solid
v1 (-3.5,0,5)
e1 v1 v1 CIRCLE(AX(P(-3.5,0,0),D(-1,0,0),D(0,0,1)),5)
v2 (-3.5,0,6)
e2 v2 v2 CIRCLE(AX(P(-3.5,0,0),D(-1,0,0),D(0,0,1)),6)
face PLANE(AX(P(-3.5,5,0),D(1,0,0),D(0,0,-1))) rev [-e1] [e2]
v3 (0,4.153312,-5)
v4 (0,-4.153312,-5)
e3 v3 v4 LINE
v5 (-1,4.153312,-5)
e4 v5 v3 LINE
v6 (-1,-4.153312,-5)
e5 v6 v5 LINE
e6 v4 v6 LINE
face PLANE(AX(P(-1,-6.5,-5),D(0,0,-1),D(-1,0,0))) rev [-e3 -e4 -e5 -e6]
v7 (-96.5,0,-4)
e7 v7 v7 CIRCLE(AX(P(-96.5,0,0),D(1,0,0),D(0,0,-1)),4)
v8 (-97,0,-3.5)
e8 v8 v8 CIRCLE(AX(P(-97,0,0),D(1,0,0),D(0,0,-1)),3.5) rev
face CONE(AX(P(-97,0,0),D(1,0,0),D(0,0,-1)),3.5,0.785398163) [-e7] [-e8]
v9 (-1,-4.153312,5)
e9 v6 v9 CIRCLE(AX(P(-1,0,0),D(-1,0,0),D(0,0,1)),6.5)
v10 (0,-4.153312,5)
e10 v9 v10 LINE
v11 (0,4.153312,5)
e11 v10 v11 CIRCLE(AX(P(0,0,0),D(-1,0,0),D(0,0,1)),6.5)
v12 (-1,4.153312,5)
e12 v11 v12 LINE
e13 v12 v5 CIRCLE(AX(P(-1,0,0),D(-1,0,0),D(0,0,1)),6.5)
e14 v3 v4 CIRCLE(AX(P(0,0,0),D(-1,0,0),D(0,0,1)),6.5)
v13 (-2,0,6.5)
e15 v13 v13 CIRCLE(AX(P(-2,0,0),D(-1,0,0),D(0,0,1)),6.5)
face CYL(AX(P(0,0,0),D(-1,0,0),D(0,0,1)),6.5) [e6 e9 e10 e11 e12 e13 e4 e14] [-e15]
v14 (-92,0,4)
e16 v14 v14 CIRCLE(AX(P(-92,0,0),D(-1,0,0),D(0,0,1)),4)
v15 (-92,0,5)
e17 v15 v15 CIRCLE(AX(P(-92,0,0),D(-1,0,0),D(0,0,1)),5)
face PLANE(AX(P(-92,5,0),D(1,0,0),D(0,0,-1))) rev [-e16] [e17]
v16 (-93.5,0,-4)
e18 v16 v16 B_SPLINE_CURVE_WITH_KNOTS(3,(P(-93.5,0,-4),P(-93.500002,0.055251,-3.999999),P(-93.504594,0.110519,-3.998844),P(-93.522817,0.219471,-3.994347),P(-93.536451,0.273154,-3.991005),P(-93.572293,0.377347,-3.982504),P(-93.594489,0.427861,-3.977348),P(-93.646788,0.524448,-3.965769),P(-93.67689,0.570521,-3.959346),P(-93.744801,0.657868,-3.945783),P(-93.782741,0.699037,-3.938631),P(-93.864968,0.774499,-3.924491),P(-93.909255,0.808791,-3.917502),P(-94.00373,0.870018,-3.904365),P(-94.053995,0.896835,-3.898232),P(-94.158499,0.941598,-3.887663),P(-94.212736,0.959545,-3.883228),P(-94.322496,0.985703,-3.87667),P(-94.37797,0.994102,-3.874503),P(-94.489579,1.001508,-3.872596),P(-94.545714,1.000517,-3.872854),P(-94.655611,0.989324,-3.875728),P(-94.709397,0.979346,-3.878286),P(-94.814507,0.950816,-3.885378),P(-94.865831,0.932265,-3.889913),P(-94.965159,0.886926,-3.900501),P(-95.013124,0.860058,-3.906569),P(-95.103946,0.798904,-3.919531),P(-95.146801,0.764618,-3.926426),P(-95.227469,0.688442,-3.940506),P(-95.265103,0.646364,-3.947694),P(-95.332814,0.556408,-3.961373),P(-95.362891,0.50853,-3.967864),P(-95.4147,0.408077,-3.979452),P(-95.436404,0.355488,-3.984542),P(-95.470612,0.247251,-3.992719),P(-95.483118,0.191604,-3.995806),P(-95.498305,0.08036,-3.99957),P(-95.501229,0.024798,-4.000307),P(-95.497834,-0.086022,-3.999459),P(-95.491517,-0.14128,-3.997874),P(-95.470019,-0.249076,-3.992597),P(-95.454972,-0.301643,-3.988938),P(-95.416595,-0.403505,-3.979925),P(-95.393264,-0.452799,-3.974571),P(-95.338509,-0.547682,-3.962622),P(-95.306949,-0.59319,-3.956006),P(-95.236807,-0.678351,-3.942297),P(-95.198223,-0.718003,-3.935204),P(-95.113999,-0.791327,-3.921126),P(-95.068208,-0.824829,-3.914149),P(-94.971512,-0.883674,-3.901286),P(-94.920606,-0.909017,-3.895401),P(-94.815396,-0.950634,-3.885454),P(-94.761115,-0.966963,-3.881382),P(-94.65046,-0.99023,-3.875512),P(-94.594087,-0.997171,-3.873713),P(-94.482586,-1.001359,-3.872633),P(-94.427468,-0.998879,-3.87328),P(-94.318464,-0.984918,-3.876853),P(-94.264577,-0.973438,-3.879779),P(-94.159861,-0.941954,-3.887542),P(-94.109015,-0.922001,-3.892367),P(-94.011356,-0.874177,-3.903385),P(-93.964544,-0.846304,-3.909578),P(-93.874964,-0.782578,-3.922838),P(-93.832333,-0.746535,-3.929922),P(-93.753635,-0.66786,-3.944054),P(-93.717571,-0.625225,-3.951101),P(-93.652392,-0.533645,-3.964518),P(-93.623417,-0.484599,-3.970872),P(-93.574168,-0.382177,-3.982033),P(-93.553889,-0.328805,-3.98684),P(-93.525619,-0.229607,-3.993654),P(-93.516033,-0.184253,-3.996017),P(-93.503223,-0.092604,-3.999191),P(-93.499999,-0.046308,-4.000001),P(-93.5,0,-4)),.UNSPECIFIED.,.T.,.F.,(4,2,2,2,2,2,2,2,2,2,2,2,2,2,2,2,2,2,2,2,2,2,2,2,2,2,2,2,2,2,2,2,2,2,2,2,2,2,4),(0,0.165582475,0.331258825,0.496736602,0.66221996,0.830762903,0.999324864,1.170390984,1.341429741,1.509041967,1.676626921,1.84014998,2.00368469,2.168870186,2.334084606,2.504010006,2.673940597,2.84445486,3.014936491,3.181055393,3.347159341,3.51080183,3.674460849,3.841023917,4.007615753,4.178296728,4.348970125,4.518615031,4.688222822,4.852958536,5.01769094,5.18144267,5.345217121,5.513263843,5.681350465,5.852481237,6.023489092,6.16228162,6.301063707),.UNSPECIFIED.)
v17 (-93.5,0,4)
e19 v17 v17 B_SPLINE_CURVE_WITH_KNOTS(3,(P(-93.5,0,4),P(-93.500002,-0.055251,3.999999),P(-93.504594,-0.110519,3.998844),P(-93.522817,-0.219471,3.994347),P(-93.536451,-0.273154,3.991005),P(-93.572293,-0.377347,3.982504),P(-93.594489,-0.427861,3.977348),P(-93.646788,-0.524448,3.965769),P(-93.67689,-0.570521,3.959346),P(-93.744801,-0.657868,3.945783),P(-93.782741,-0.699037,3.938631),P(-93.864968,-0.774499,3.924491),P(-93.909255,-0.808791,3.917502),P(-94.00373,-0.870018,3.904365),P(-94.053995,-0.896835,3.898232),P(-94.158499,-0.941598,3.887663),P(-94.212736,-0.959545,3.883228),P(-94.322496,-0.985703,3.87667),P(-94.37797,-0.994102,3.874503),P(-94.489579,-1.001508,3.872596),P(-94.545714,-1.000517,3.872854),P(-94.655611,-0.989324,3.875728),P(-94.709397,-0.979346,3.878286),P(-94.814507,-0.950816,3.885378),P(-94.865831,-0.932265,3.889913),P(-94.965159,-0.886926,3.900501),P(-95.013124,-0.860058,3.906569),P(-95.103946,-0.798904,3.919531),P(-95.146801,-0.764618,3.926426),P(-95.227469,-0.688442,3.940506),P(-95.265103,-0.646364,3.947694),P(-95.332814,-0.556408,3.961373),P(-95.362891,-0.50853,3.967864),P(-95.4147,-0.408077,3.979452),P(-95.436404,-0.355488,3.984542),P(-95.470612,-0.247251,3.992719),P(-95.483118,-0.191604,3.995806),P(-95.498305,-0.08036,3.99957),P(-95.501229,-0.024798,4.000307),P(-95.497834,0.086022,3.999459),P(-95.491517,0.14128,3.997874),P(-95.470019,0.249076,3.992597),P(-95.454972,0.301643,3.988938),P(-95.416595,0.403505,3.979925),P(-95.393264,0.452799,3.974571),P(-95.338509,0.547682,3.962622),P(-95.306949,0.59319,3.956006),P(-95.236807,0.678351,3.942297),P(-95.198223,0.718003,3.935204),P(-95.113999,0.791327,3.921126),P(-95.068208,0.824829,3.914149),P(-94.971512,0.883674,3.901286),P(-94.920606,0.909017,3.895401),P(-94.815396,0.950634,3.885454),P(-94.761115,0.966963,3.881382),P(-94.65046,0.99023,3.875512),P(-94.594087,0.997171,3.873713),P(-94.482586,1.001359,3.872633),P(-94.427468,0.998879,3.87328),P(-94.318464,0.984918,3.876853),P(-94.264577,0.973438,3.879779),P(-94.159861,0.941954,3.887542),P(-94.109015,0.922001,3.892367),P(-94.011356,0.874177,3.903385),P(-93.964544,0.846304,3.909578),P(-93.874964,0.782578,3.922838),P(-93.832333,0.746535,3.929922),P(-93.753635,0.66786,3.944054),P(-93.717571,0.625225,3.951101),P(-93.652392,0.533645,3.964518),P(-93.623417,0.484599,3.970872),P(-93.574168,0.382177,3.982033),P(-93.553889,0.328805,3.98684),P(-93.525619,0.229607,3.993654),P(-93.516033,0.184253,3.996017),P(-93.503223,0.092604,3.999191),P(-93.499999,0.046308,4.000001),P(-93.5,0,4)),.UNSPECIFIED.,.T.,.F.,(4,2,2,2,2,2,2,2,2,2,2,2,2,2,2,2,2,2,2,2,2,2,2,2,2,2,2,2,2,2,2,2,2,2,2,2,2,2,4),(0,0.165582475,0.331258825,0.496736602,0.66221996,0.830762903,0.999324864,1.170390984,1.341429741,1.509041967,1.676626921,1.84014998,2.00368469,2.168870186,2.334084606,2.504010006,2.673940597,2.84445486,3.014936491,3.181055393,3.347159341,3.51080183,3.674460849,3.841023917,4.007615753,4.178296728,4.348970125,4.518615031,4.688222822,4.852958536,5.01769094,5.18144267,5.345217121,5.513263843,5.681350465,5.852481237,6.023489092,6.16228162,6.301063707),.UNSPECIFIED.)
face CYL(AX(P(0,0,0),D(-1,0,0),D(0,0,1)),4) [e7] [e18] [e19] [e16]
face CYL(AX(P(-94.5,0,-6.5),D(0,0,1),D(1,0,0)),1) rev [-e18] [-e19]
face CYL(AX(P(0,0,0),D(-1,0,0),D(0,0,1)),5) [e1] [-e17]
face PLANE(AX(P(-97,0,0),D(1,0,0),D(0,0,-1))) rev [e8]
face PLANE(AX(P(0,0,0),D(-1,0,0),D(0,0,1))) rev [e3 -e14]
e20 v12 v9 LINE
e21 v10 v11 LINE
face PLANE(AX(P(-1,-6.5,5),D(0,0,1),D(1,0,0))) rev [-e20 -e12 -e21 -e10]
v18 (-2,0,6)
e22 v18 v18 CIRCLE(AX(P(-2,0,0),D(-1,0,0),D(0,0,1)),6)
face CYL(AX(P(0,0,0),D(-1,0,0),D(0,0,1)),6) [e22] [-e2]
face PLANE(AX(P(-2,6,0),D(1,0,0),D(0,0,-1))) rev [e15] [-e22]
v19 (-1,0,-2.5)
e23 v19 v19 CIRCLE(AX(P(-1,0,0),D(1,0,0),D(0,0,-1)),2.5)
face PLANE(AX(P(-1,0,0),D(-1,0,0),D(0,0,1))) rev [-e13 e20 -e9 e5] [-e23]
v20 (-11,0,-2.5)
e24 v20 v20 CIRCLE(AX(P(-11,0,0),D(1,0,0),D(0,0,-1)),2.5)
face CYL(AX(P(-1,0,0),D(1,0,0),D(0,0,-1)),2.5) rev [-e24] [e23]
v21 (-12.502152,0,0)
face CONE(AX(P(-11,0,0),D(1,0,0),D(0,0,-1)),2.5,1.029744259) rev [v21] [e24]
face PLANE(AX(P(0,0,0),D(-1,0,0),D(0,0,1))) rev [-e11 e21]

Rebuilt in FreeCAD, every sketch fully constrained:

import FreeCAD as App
import Part
import Sketcher
Q = App.Units.Quantity


def edges_at(feature, points):
    """Names of the edges that pass closest to the given points."""
    edges = feature.Shape.Edges
    near = lambda p: min(range(len(edges)), key=lambda i: edges[i].distToShape(Part.Vertex(*p))[0])
    return sorted({f"Edge{near(p) + 1}" for p in points})


def add_polygon(sketch, points):
    """Adds a closed chain of lines whose ends are joined by coincident constraints."""
    first, n = sketch.GeometryCount, len(points)
    for a, b in zip(points, points[1:] + points[:1]):
        sketch.addGeometry(Part.LineSegment(App.Vector(*a, 0), App.Vector(*b, 0)), False)
    for i in range(n):
        sketch.addConstraint(Sketcher.Constraint("Coincident", first + i, 2, first + (i + 1) % n, 1))

doc = App.newDocument("Part")
params = doc.addObject("Spreadsheet::Sheet", "Params")
for row, (alias, value) in enumerate([
    ("sketch1_width", "97 mm"),
    ("sketch1_width2", "2 mm"),
    ("sketch1_width3", "5 mm"),
    ("sketch1_height", "4 mm"),
    ("sketch1_height2", "1 mm"),
    ("revolution_angle", "360 deg"),
    ("sketch2_width", "13 mm"),
    ("sketch2_height", "10 mm"),
    ("pocket1_length", "1 mm"),
    ("sketch3_diameter", "5 mm"),
    ("hole_diameter", "5 mm"),
    ("hole_depth", "10 mm"),
    ("sketch4_diameter", "2 mm"),
    ("chamfer_size", "0.5 mm"),
], start=1):
    params.set(f"A{row}", alias)
    params.set(f"B{row}", "=" + value)
    params.setAlias(f"B{row}", alias)

body = doc.addObject("PartDesign::Body", "Body")

# Sketch on XY plane
sketch1 = body.newObject("Sketcher::SketchObject", "Sketch")
sketch1.AttachmentSupport = (doc.getObject("XY_Plane"), [""])
sketch1.MapMode = "FlatFace"
add_polygon(sketch1, [(-97, 4), (-97, 0), (0, 0), (0, 6.5), (-2, 6.5), (-2, 6), (-3.5, 6), (-3.5, 5), (-92, 5), (-92, 4)])  # lines 0-9
sketch1.addConstraint([
    Sketcher.Constraint("Vertical", 0),
    Sketcher.Constraint("Horizontal", 1),
    Sketcher.Constraint("Vertical", 2),
    Sketcher.Constraint("Horizontal", 3),
    Sketcher.Constraint("Vertical", 4),
    Sketcher.Constraint("Horizontal", 5),
    Sketcher.Constraint("Vertical", 6),
    Sketcher.Constraint("Horizontal", 7),
    Sketcher.Constraint("Vertical", 8),
    Sketcher.Constraint("Horizontal", 9),
    Sketcher.Constraint("Coincident", 1, 2, -1, 1),
    Sketcher.Constraint("Equal", 6, 8),
    Sketcher.Constraint("DistanceX", 1, 1, 1, 2, Q("97 mm")),
    Sketcher.Constraint("DistanceX", 3, 2, 3, 1, Q("2 mm")),
    Sketcher.Constraint("DistanceX", 9, 2, 9, 1, Q("5 mm")),
    Sketcher.Constraint("DistanceY", 0, 2, 0, 1, Q("4 mm")),
    Sketcher.Constraint("DistanceY", 6, 2, 6, 1, Q("1 mm")),
    Sketcher.Constraint("DistanceX", 5, 2, 5, 1, Q("1.5 mm")),
    Sketcher.Constraint("DistanceY", 2, 1, 2, 2, Q("6.5 mm")),
])
sketch1.setExpression("Constraints[22]", "Params.sketch1_width")
sketch1.setExpression("Constraints[23]", "Params.sketch1_width2")
sketch1.setExpression("Constraints[24]", "Params.sketch1_width3")
sketch1.setExpression("Constraints[25]", "Params.sketch1_height")
sketch1.setExpression("Constraints[26]", "Params.sketch1_height2")
revolution = body.newObject("PartDesign::Revolution", "Revolution")
revolution.Profile = sketch1
revolution.ReferenceAxis = (sketch1, ["H_Axis"])
revolution.setExpression("Angle", "Params.revolution_angle")

# Sketch on YZ plane
sketch2 = body.newObject("Sketcher::SketchObject", "Sketch001")
sketch2.AttachmentSupport = (doc.getObject("YZ_Plane"), [""])
sketch2.MapMode = "FlatFace"
add_polygon(sketch2, [(6.5, 5), (-6.5, 5), (-6.5, -5), (6.5, -5)])  # lines 0-3
sketch2.addConstraint([
    Sketcher.Constraint("Horizontal", 0),
    Sketcher.Constraint("Vertical", 1),
    Sketcher.Constraint("Horizontal", 2),
    Sketcher.Constraint("Vertical", 3),
    Sketcher.Constraint("Symmetric", 0, 2, 2, 2, -1, 1),
    Sketcher.Constraint("DistanceX", 0, 2, 0, 1, Q("13 mm")),
    Sketcher.Constraint("DistanceY", 1, 2, 1, 1, Q("10 mm")),
])
sketch2.setExpression("Constraints[9]", "Params.sketch2_width")
sketch2.setExpression("Constraints[10]", "Params.sketch2_height")
pocket1 = body.newObject("PartDesign::Pocket", "Pocket")
pocket1.Profile = sketch2
pocket1.setExpression("Length", "Params.pocket1_length")

# Sketch on YZ plane
sketch3 = body.newObject("Sketcher::SketchObject", "Sketch002")
sketch3.AttachmentSupport = (doc.getObject("YZ_Plane"), [""])
sketch3.MapMode = "FlatFace"
sketch3.AttachmentOffset = App.Placement(App.Vector(0, 0, -1), App.Rotation())
sketch3.addGeometry(Part.Circle(App.Vector(0, 0, 0), App.Vector(0, 0, 1), 2.5), False)
sketch3.addConstraint([
    Sketcher.Constraint("Coincident", 0, 3, -1, 1),
    Sketcher.Constraint("Diameter", 0, Q("5 mm")),
])
sketch3.setExpression("Constraints[1]", "Params.sketch3_diameter")
doc.recompute()
hole = body.newObject("PartDesign::Hole", "Hole")
hole.Profile = sketch3
hole.ThreadType = "None"
hole.setExpression("Diameter", "Params.hole_diameter")
hole.DepthType = "Dimension"
hole.setExpression("Depth", "Params.hole_depth")
hole.DrillPoint = "Angled"
hole.DrillPointAngle = 118

# Sketch on XY plane
sketch4 = body.newObject("Sketcher::SketchObject", "Sketch003")
sketch4.AttachmentSupport = (doc.getObject("XY_Plane"), [""])
sketch4.MapMode = "FlatFace"
sketch4.addGeometry(Part.Circle(App.Vector(-94.5, 0, 0), App.Vector(0, 0, 1), 1), False)
sketch4.addConstraint([
    Sketcher.Constraint("PointOnObject", 0, 3, -1),
    Sketcher.Constraint("Diameter", 0, Q("2 mm")),
    Sketcher.Constraint("DistanceX", 0, 3, -1, 1, Q("94.5 mm")),
])
sketch4.setExpression("Constraints[1]", "Params.sketch4_diameter")
pocket2 = body.newObject("PartDesign::Pocket", "Pocket001")
pocket2.Profile = sketch4
pocket2.Type = "ThroughAll"
pocket2.Midplane = True
doc.recompute()

chamfer = body.newObject("PartDesign::Chamfer", "Chamfer")
chamfer.Base = (pocket2, edges_at(pocket2, [(-97, -4, 0)]))
chamfer.setExpression("Size", "Params.chamfer_size")

doc.recompute()
